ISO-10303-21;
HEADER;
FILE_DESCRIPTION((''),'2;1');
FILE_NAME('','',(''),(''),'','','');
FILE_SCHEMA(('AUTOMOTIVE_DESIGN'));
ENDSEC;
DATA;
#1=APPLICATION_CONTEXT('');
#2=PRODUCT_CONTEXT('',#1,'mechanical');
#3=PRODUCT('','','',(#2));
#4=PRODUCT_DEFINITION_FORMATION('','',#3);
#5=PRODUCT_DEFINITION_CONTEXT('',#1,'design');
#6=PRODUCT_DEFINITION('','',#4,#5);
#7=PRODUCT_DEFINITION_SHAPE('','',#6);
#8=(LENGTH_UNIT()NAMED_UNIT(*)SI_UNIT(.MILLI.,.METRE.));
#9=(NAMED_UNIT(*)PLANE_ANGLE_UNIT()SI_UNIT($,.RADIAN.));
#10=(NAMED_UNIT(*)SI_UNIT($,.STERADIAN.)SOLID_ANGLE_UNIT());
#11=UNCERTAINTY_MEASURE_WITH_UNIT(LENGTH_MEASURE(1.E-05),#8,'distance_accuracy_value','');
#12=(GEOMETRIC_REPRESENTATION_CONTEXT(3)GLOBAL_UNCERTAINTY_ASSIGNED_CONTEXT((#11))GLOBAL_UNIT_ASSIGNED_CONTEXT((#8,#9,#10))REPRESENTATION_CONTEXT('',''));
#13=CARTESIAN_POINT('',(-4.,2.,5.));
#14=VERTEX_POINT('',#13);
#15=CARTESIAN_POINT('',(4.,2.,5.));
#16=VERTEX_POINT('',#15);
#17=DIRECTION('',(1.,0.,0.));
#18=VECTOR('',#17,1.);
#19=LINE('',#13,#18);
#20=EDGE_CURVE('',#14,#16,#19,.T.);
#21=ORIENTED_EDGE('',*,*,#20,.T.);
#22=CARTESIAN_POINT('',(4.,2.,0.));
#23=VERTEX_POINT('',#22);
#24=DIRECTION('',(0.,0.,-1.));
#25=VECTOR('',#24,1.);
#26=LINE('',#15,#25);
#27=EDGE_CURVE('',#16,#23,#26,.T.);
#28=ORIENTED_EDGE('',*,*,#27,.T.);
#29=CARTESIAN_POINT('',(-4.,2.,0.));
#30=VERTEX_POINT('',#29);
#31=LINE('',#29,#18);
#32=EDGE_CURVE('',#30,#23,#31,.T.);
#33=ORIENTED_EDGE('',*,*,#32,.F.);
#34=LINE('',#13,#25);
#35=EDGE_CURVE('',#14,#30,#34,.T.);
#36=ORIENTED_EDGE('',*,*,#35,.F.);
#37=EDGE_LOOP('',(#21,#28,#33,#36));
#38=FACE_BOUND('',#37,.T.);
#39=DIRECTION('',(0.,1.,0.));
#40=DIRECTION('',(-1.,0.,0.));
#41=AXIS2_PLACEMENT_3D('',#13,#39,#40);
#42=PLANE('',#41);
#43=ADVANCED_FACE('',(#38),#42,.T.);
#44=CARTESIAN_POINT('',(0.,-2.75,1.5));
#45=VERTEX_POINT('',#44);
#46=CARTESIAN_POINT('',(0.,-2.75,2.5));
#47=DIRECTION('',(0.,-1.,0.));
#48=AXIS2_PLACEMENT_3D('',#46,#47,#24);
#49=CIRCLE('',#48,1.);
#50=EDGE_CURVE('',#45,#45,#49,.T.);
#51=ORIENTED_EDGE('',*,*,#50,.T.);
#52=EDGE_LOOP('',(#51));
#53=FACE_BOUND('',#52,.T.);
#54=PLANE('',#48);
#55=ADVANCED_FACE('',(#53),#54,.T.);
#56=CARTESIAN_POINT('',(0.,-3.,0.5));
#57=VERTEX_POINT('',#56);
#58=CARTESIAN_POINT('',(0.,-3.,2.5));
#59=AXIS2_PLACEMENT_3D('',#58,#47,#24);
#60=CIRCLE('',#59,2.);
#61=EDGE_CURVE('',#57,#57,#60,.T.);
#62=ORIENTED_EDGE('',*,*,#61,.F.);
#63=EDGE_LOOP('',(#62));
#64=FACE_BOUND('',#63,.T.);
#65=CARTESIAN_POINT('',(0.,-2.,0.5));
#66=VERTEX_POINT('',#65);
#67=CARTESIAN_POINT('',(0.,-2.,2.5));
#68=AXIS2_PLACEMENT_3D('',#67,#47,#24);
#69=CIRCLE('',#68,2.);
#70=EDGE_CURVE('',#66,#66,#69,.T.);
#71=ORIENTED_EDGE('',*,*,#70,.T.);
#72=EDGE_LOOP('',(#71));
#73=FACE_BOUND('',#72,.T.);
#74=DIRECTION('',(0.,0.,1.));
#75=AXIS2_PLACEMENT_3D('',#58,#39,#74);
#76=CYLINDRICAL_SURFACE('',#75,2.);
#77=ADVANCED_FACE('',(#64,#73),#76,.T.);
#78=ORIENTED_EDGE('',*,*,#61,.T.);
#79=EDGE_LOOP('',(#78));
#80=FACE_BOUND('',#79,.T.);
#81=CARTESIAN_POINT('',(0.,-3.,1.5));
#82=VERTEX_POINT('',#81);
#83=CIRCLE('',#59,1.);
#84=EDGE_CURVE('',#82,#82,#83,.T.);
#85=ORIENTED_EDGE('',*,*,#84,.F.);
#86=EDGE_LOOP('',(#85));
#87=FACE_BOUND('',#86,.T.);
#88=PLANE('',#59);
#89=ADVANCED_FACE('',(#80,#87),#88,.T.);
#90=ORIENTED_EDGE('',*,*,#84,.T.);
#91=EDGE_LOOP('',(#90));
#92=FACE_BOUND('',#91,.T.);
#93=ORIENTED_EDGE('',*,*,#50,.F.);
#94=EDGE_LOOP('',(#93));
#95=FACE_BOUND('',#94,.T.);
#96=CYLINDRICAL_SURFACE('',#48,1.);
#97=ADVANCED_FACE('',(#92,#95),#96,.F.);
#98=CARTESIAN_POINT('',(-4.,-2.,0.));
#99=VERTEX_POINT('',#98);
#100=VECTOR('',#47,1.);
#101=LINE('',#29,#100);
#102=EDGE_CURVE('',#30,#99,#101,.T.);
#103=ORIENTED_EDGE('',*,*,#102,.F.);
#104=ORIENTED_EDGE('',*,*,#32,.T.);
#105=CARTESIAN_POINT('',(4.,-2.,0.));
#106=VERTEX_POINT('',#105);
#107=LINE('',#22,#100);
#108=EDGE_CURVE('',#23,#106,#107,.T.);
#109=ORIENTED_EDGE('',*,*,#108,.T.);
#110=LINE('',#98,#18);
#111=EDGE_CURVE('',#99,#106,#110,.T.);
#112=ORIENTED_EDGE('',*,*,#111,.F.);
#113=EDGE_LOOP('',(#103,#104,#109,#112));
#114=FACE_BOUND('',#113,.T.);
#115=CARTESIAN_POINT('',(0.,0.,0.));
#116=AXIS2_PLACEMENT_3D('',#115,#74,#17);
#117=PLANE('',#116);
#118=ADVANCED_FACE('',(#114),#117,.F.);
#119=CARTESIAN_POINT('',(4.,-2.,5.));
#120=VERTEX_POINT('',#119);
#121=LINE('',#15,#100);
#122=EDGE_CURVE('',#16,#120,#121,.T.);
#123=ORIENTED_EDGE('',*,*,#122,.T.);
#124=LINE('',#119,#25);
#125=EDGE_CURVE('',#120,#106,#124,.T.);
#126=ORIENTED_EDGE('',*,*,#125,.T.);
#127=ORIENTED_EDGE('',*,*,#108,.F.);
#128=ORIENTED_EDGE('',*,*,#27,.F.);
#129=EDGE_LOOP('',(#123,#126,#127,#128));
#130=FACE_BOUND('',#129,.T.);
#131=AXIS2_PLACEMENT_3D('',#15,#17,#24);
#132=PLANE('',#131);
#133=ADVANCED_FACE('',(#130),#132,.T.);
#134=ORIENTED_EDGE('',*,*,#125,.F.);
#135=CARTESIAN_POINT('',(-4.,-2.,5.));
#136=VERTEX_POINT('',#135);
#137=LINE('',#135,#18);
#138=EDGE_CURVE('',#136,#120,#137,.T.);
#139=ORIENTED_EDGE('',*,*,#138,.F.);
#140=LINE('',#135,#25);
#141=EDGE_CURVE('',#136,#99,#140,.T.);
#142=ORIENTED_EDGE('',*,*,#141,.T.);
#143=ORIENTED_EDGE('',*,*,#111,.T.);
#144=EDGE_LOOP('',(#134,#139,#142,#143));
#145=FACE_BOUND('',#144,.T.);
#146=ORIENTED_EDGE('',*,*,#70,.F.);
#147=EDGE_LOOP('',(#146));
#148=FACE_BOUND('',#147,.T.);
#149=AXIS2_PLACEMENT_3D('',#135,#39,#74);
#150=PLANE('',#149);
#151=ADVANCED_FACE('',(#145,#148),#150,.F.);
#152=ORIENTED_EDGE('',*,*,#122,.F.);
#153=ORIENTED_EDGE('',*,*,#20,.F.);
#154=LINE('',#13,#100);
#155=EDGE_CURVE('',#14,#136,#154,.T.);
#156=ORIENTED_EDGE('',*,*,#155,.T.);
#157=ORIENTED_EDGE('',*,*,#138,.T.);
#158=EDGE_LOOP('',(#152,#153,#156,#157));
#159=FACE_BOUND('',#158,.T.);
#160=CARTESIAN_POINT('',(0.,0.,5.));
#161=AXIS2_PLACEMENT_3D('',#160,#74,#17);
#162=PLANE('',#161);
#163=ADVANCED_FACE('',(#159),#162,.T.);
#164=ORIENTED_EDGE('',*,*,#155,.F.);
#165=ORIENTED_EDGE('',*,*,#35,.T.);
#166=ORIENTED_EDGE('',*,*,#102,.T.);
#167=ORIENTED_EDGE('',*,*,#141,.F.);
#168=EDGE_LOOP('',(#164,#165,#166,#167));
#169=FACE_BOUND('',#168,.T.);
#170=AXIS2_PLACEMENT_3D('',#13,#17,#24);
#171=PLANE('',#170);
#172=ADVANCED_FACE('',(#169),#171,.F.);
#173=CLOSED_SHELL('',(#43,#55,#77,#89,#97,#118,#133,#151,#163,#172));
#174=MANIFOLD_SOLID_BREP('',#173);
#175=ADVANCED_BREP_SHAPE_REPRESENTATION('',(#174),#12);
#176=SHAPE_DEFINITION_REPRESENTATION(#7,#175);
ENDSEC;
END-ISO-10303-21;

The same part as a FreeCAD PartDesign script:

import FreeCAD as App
import Part
import Sketcher


def add_polygon(sketch, points):
    """Adds a closed chain of lines whose ends are joined by coincident constraints."""
    first, n = sketch.GeometryCount, len(points)
    for a, b in zip(points, points[1:] + points[:1]):
        sketch.addGeometry(Part.LineSegment(App.Vector(*a, 0), App.Vector(*b, 0)), False)
    for i in range(n):
        sketch.addConstraint(Sketcher.Constraint("Coincident", first + i, 2, first + (i + 1) % n, 1))

doc = App.newDocument("Part")
body = doc.addObject("PartDesign::Body", "Body")

# Sketch on XY plane
sketch1 = doc.addObject("Sketcher::SketchObject", "Sketch")
body.addObject(sketch1)
sketch1.AttachmentSupport = (doc.XY_Plane, [""])
sketch1.MapMode = "FlatFace"
add_polygon(sketch1, [(-4, 2), (-4, -2), (4, -2), (4, 2)])  # lines 0-3
sketch1.addConstraint([
    Sketcher.Constraint("Vertical", 0),
    Sketcher.Constraint("Horizontal", 1),
    Sketcher.Constraint("Vertical", 2),
    Sketcher.Constraint("Horizontal", 3),
    Sketcher.Constraint("Symmetric", 0, 2, 2, 2, -1, 1),
    Sketcher.Constraint("DistanceX", 1, 1, 1, 2, 8.0),
    Sketcher.Constraint("DistanceY", 0, 2, 0, 1, 4.0),
])
pad1 = doc.addObject("PartDesign::Pad", "Pad")
body.addObject(pad1)
pad1.Profile = sketch1
pad1.Length = 5

# Sketch on XZ plane
sketch2 = doc.addObject("Sketcher::SketchObject", "Sketch001")
body.addObject(sketch2)
sketch2.AttachmentSupport = (doc.XZ_Plane, [""])
sketch2.MapMode = "FlatFace"
sketch2.AttachmentOffset = App.Placement(App.Vector(0, 0, 2), App.Rotation())
sketch2.addGeometry(Part.Circle(App.Vector(0, 2.5, 0), App.Vector(0, 0, 1), 2), False)
sketch2.addConstraint([
    Sketcher.Constraint("PointOnObject", 0, 3, -2),
    Sketcher.Constraint("Diameter", 0, 4.0),
    Sketcher.Constraint("DistanceY", -1, 1, 0, 3, 2.5),
])
pad2 = doc.addObject("PartDesign::Pad", "Pad001")
body.addObject(pad2)
pad2.Profile = sketch2
pad2.Length = 1

# Sketch on XZ plane
sketch3 = doc.addObject("Sketcher::SketchObject", "Sketch002")
body.addObject(sketch3)
sketch3.AttachmentSupport = (doc.XZ_Plane, [""])
sketch3.MapMode = "FlatFace"
sketch3.AttachmentOffset = App.Placement(App.Vector(0, 0, 3), App.Rotation())
sketch3.addGeometry(Part.Circle(App.Vector(0, 2.5, 0), App.Vector(0, 0, 1), 1), False)
sketch3.addConstraint([
    Sketcher.Constraint("PointOnObject", 0, 3, -2),
    Sketcher.Constraint("Diameter", 0, 2.0),
    Sketcher.Constraint("DistanceY", -1, 1, 0, 3, 2.5),
])
pocket1 = doc.addObject("PartDesign::Pocket", "Pocket")
body.addObject(pocket1)
pocket1.Profile = sketch3
pocket1.Length = 0.25

doc.recompute()
